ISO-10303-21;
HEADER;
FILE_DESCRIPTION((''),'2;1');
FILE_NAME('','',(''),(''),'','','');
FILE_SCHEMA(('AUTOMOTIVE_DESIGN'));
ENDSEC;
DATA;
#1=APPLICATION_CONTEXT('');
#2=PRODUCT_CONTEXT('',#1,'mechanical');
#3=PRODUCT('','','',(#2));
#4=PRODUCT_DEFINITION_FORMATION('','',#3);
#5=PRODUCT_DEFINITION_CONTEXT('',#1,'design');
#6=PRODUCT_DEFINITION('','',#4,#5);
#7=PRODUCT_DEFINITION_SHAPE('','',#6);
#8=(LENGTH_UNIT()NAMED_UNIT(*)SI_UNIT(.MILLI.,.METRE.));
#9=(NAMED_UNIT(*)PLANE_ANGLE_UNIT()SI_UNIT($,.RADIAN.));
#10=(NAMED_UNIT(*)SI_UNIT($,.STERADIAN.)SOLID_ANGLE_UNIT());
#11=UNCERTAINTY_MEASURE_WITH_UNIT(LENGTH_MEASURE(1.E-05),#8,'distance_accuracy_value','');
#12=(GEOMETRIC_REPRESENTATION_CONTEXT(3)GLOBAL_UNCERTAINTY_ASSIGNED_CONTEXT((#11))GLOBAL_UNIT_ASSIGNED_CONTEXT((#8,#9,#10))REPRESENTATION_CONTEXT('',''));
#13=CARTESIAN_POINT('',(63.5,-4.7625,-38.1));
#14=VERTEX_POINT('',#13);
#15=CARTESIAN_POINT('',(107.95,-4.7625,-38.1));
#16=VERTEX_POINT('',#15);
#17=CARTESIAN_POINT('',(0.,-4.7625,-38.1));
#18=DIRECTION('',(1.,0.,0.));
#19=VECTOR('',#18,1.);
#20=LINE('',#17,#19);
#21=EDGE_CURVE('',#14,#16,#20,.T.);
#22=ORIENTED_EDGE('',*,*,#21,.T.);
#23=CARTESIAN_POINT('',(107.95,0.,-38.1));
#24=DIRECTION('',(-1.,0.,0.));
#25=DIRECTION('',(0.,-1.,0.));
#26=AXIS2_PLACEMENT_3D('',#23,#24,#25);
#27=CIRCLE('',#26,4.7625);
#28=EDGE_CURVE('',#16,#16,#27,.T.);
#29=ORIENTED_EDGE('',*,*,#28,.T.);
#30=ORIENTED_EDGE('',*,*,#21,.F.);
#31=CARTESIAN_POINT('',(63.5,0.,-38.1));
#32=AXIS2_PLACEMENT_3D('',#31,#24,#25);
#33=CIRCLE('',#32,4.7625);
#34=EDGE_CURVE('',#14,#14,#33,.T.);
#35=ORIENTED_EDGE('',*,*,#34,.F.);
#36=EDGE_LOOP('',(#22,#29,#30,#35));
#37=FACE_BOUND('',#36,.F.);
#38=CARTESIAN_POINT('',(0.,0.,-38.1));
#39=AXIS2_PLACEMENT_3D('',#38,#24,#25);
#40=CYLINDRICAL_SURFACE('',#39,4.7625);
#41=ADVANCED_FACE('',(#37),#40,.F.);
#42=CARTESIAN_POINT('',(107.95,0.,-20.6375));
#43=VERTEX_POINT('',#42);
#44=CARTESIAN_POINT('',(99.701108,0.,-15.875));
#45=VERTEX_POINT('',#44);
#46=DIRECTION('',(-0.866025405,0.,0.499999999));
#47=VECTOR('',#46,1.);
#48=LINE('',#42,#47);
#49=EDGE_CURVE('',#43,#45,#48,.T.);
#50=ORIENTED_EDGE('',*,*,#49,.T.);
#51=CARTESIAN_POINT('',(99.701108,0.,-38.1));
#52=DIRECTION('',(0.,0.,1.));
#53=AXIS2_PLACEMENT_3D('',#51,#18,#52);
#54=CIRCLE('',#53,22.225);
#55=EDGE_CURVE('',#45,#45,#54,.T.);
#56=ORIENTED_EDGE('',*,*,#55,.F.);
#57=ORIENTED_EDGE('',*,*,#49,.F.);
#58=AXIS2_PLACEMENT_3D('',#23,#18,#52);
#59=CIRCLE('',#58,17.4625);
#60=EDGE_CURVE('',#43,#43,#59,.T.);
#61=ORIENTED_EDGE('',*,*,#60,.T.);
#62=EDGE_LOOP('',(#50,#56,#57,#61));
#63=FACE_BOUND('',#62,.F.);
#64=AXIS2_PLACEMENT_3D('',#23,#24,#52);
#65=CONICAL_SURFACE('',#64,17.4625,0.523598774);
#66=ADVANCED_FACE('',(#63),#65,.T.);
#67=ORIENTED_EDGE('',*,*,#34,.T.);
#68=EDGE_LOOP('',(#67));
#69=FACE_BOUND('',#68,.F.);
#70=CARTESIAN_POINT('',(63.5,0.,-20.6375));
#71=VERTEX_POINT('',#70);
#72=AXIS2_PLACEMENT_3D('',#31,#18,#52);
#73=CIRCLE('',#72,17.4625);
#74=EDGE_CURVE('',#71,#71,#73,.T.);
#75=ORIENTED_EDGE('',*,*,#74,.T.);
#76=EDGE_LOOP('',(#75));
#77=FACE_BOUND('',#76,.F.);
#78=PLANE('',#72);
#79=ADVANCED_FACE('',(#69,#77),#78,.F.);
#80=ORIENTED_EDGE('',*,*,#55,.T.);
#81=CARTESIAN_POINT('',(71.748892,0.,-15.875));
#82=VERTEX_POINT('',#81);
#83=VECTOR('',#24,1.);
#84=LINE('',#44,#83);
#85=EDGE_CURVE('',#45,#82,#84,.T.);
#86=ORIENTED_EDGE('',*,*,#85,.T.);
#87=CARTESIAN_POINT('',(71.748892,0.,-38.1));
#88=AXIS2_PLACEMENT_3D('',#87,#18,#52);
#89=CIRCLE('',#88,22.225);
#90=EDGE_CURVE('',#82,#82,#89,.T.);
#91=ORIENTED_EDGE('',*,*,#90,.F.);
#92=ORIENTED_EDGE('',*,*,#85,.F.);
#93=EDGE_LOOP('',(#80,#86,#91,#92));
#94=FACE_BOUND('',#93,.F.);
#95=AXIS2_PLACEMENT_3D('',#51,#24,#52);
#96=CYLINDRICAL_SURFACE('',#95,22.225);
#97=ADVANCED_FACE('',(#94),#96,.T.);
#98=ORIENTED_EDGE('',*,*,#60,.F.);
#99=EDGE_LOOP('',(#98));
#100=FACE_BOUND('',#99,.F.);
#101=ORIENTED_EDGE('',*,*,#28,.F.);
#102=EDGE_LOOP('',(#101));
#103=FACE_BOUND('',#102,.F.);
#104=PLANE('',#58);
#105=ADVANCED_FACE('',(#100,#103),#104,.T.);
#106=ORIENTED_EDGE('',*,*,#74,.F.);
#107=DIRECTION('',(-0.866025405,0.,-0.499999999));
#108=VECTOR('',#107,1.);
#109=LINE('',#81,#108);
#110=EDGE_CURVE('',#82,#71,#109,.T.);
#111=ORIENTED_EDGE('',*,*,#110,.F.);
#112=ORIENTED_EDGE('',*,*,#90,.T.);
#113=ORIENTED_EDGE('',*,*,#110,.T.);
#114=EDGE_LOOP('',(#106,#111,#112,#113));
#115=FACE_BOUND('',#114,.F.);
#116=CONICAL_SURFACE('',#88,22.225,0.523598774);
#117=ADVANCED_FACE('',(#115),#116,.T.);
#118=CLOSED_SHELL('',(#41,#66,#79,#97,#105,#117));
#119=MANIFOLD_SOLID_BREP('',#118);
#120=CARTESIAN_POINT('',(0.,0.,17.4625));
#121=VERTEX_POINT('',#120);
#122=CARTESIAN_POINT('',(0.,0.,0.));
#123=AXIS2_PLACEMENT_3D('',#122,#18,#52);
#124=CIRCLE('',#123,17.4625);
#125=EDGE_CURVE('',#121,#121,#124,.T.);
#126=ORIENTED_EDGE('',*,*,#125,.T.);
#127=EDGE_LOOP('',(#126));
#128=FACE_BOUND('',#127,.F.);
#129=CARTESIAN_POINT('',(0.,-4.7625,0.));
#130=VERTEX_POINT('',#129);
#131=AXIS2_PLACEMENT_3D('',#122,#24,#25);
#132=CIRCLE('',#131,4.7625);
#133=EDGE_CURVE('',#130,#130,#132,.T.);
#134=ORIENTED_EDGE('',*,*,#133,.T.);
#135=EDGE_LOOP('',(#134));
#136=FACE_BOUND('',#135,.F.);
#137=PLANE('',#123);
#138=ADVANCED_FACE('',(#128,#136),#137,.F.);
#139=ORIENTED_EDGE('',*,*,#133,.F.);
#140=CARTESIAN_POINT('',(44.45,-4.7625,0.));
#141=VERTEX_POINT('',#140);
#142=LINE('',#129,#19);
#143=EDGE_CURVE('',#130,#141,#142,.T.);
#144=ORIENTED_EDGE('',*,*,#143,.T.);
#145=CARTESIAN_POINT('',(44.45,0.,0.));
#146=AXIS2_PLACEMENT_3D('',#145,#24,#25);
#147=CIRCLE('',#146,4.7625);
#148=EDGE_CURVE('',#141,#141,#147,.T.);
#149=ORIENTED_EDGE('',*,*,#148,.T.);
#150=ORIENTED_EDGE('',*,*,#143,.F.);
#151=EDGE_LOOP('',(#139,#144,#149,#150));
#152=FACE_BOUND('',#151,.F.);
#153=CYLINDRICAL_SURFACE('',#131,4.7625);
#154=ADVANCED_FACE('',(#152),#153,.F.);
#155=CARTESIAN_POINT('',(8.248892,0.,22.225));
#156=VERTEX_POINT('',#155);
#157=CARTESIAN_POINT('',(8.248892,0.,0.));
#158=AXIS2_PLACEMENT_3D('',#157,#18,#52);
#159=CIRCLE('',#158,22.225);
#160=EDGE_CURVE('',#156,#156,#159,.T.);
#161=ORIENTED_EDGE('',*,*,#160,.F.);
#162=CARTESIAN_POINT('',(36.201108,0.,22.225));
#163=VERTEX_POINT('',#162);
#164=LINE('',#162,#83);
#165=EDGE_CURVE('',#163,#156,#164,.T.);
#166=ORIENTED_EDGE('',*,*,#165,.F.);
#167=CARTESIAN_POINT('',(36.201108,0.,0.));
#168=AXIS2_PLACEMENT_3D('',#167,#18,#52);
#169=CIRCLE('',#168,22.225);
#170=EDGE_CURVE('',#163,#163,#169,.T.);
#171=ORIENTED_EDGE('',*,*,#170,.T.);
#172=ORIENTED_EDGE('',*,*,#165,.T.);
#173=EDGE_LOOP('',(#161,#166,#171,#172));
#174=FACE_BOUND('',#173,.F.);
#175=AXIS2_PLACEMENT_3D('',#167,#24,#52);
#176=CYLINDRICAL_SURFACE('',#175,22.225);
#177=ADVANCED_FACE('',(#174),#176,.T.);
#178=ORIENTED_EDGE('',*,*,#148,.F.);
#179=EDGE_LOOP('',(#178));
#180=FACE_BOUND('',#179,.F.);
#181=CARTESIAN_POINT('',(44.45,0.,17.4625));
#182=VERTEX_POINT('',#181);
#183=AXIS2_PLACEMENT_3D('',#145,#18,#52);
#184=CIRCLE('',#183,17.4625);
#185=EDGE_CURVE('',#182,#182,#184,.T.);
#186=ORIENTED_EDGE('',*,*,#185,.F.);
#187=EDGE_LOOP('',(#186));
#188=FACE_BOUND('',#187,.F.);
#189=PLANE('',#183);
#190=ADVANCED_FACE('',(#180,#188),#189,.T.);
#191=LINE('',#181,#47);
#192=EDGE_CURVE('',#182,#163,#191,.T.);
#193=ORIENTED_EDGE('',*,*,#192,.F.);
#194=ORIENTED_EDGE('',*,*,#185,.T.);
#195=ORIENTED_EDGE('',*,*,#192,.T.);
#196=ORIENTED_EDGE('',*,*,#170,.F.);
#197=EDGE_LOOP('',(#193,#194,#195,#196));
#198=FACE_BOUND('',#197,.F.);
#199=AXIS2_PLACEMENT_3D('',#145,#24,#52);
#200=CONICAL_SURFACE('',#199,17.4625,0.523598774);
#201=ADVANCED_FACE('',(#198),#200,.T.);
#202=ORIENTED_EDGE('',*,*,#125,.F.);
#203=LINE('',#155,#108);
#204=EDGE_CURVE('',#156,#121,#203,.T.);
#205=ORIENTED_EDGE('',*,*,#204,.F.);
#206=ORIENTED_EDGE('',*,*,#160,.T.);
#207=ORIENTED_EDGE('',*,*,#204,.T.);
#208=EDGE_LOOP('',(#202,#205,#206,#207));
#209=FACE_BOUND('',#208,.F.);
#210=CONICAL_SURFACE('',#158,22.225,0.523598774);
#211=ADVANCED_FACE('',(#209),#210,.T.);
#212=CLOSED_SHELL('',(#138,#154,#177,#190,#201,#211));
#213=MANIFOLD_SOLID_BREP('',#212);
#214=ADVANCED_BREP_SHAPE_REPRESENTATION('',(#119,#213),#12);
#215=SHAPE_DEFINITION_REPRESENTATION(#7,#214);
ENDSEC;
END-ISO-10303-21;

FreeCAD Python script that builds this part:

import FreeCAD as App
import Part
import Sketcher
Q = App.Units.Quantity


def add_polygon(sketch, points):
    """Adds a closed chain of lines whose ends are joined by coincident constraints."""
    first, n = sketch.GeometryCount, len(points)
    for a, b in zip(points, points[1:] + points[:1]):
        sketch.addGeometry(Part.LineSegment(App.Vector(*a, 0), App.Vector(*b, 0)), False)
    for i in range(n):
        sketch.addConstraint(Sketcher.Constraint("Coincident", first + i, 2, first + (i + 1) % n, 1))

doc = App.newDocument("Part")
body = doc.addObject("PartDesign::Body", "Body")

# Sketch on XZ plane
sketch1 = body.newObject("Sketcher::SketchObject", "Sketch")
sketch1.AttachmentSupport = (doc.getObject("XZ_Plane"), [""])
sketch1.MapMode = "FlatFace"
add_polygon(sketch1, [(0, 17), (0, 0), (44, 0), (44, 17), (36, 22), (8, 22)])  # lines 0-5
sketch1.addConstraint(Sketcher.Constraint("Vertical", 0))
sketch1.addConstraint(Sketcher.Constraint("Horizontal", 1))
sketch1.addConstraint(Sketcher.Constraint("Vertical", 2))
sketch1.addConstraint(Sketcher.Constraint("Horizontal", 4))
sketch1.addConstraint(Sketcher.Constraint("Coincident", 0, 2, -1, 1))
sketch1.addConstraint(Sketcher.Constraint("Horizontal", 2, 2, 5, 2))
sketch1.addConstraint(Sketcher.Constraint("Equal", 3, 5))
sketch1.addConstraint(Sketcher.Constraint("Angle", 3, Q("150 deg")))
sketch1.addConstraint(Sketcher.Constraint("DistanceX", 1, 1, 1, 2, Q("1.75 in")))
sketch1.addConstraint(Sketcher.Constraint("DistanceY", 0, 2, 0, 1, Q("0.6875 in")))
sketch1.addConstraint(Sketcher.Constraint("Distance", 3, Q("0.375 in")))
revolution = body.newObject("PartDesign::Revolution", "Revolution")
revolution.Profile = sketch1
revolution.ReferenceAxis = (sketch1, ["H_Axis"])
revolution.Angle = 360
body2 = doc.addObject("PartDesign::Body", "Body001")

# Sketch on XZ plane
sketch2 = body2.newObject("Sketcher::SketchObject", "Sketch001")
sketch2.AttachmentSupport = (doc.getObject("XZ_Plane001"), [""])
sketch2.MapMode = "FlatFace"
add_polygon(sketch2, [(64, -21), (64, -38), (108, -38), (108, -21), (100, -16), (72, -16)])  # lines 0-5
sketch2.addGeometry(Part.LineSegment(App.Vector(64, -38, 0), App.Vector(108, -38, 0)), True)  # axis
sketch2.addConstraint(Sketcher.Constraint("Vertical", 0))
sketch2.addConstraint(Sketcher.Constraint("Horizontal", 1))
sketch2.addConstraint(Sketcher.Constraint("Vertical", 2))
sketch2.addConstraint(Sketcher.Constraint("Horizontal", 4))
sketch2.addConstraint(Sketcher.Constraint("Horizontal", 6))
sketch2.addConstraint(Sketcher.Constraint("Coincident", 6, 1, 0, 2))
sketch2.addConstraint(Sketcher.Constraint("Horizontal", 2, 2, 5, 2))
sketch2.addConstraint(Sketcher.Constraint("Vertical", 2, 2, 6, 2))
sketch2.addConstraint(Sketcher.Constraint("Equal", 3, 5))
sketch2.addConstraint(Sketcher.Constraint("Angle", 3, Q("150 deg")))
sketch2.addConstraint(Sketcher.Constraint("DistanceX", 1, 1, 1, 2, Q("1.75 in")))
sketch2.addConstraint(Sketcher.Constraint("DistanceX", -1, 1, 0, 2, Q("2.5 in")))
sketch2.addConstraint(Sketcher.Constraint("DistanceY", 0, 2, -1, 1, Q("1.5 in")))
sketch2.addConstraint(Sketcher.Constraint("DistanceY", 0, 2, 0, 1, Q("0.6875 in")))
sketch2.addConstraint(Sketcher.Constraint("Distance", 3, Q("0.375 in")))
revolution2 = body2.newObject("PartDesign::Revolution", "Revolution001")
revolution2.Profile = sketch2
revolution2.ReferenceAxis = (sketch2, ["Axis0"])
revolution2.Angle = 360
body3 = doc.addObject("PartDesign::Body", "Body002")
body3.AllowCompound = True

# Sketch on YZ plane
sketch3 = body3.newObject("Sketcher::SketchObject", "Sketch002")
sketch3.AttachmentSupport = (doc.getObject("YZ_Plane002"), [""])
sketch3.MapMode = "FlatFace"
sketch3.addGeometry(Part.Circle(App.Vector(0, 0, 0), App.Vector(0, 0, 1), 4.8), False)
sketch3.addGeometry(Part.Circle(App.Vector(0, -38.1, 0), App.Vector(0, 0, 1), 4.8), False)
sketch3.addConstraint(Sketcher.Constraint("Coincident", 0, 3, -1, 1))
sketch3.addConstraint(Sketcher.Constraint("Equal", 0, 1))
sketch3.addConstraint(Sketcher.Constraint("PointOnObject", 1, 3, -2))
sketch3.addConstraint(Sketcher.Constraint("Diameter", 0, Q("0.375 in")))
sketch3.addConstraint(Sketcher.Constraint("DistanceY", 1, 3, -1, 1, Q("1.5 in")))
pad1 = body3.newObject("PartDesign::Pad", "Pad")
pad1.Profile = sketch3
pad1.Length = 107.951
doc.recompute()

body4 = doc.addObject("PartDesign::Body", "Body003")
body4.BaseFeature = body3
boolean = body.newObject("PartDesign::Boolean", "Boolean")
boolean.Type = "Cut"
boolean.addObjects([body4])
doc.recompute()

boolean2 = body2.newObject("PartDesign::Boolean", "Boolean001")
boolean2.Type = "Cut"
boolean2.addObjects([body3])

doc.recompute()
